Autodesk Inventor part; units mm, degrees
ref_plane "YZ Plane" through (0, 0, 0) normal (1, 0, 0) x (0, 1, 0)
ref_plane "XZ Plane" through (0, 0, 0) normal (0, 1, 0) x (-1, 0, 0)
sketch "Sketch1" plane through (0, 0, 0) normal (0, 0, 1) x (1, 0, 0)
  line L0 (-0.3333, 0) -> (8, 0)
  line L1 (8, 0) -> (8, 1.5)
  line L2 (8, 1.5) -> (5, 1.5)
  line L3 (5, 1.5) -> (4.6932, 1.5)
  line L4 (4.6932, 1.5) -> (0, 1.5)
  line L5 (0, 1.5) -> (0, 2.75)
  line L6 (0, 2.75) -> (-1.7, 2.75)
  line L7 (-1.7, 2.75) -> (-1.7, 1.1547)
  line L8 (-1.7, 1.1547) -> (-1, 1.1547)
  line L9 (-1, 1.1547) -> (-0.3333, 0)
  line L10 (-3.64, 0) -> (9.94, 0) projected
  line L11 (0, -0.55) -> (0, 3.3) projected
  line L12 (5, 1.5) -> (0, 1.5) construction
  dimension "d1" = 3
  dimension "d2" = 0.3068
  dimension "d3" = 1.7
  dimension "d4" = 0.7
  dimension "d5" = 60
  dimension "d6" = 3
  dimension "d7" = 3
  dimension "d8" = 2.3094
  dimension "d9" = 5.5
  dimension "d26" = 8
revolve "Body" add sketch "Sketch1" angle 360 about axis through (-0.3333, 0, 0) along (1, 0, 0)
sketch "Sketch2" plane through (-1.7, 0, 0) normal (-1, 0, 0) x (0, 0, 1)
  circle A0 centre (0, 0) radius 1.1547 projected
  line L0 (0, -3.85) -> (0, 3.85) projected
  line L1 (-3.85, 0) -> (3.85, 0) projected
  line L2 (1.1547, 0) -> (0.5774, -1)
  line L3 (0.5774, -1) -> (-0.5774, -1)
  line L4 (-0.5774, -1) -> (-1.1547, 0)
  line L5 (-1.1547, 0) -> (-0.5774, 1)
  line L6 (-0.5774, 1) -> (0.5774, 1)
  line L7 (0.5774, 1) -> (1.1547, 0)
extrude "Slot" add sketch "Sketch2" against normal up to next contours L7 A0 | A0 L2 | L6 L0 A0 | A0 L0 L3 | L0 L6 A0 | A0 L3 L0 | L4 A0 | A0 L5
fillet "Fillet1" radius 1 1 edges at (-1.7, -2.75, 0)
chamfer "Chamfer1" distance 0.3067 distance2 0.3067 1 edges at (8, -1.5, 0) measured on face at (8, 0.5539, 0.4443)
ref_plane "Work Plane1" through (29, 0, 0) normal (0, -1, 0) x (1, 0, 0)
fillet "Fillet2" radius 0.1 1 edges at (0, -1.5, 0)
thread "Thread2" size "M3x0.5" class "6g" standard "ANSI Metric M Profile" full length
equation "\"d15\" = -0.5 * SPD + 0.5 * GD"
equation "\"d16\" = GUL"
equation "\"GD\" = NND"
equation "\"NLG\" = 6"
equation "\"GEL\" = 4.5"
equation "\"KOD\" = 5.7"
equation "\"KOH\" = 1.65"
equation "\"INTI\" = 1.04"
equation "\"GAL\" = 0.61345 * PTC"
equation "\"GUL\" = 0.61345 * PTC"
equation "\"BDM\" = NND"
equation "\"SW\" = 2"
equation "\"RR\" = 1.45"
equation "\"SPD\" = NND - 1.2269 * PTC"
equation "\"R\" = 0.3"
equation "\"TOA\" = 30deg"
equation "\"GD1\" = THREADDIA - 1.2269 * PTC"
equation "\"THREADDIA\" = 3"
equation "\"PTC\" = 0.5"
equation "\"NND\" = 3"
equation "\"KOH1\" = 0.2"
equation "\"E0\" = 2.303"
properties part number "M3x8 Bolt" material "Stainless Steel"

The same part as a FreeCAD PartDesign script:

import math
import FreeCAD as App
import Part
import Sketcher
from FreeCAD import Vector
Q = App.Units.Quantity


def edges_at(feature, points):
    """Names of the edges that pass closest to the given points."""
    edges = feature.Shape.Edges
    near = lambda p: min(range(len(edges)), key=lambda i: edges[i].distToShape(Part.Vertex(*p))[0])
    return sorted({f"Edge{near(p) + 1}" for p in points})


def add_polygon(sketch, points):
    """Adds a closed chain of lines whose ends are joined by coincident constraints."""
    first, n = sketch.GeometryCount, len(points)
    for a, b in zip(points, points[1:] + points[:1]):
        sketch.addGeometry(Part.LineSegment(App.Vector(*a, 0), App.Vector(*b, 0)), False)
    for i in range(n):
        sketch.addConstraint(Sketcher.Constraint("Coincident", first + i, 2, first + (i + 1) % n, 1))

doc = App.newDocument("Part")
body = doc.addObject("PartDesign::Body", "Body")

# Sketch on XY plane
sketch1 = body.newObject("Sketcher::SketchObject", "Sketch")
sketch1.AttachmentSupport = (doc.getObject("XY_Plane"), [""])
sketch1.MapMode = "FlatFace"
add_polygon(sketch1, [(-1, 1.2), (-0.3, 0), (8, 0), (8, 1.5), (0, 1.5), (0, 2.8), (-1.7, 2.8), (-1.7, 1.2)])  # lines 0-7
sketch1.addConstraint([
    Sketcher.Constraint("Horizontal", 1),
    Sketcher.Constraint("Vertical", 2),
    Sketcher.Constraint("Horizontal", 3),
    Sketcher.Constraint("Vertical", 4),
    Sketcher.Constraint("Horizontal", 5),
    Sketcher.Constraint("Vertical", 6),
    Sketcher.Constraint("Horizontal", 7),
    Sketcher.Constraint("PointOnObject", 0, 2, -1),
    Sketcher.Constraint("PointOnObject", 3, 2, -2),
    Sketcher.Constraint("DistanceX", 3, 2, 3, 1, Q("8 mm")),
    Sketcher.Constraint("DistanceX", 5, 2, 5, 1, Q("1.7 mm")),
    Sketcher.Constraint("DistanceX", 7, 1, 7, 2, Q("0.7 mm")),
    Sketcher.Constraint("DistanceY", 2, 1, 2, 2, Q("1.5 mm")),
    Sketcher.Constraint("DistanceY", 4, 1, 4, 2, Q("1.25 mm")),
    Sketcher.Constraint("DistanceX", 1, 1, 1, 2, Q("8.3333 mm")),
    Sketcher.Constraint("DistanceY", 6, 2, 6, 1, Q("1.5953 mm")),
])
revolution = body.newObject("PartDesign::Revolution", "Revolution")
revolution.Profile = sketch1
revolution.ReferenceAxis = (sketch1, ["H_Axis"])
revolution.Angle = 360

# Sketch on YZ plane
sketch2 = body.newObject("Sketcher::SketchObject", "Sketch001")
sketch2.AttachmentSupport = (doc.getObject("YZ_Plane"), [""])
sketch2.MapMode = "FlatFace"
sketch2.AttachmentOffset = App.Placement(Vector(0, 0, -1.7), App.Rotation())
sketch2.addGeometry([
    Part.LineSegment(Vector(1, 0.6, 0), Vector(0, 1.2, 0)),  # 0
    Part.ArcOfCircle(Part.Circle(Vector(0, 0, 0), Vector(0, 0, 1), 1.2), math.radians(30), math.radians(90)),  # 1
    Part.ArcOfCircle(Part.Circle(Vector(0, 0, 0), Vector(0, 0, 1), 1.2), math.radians(90), math.radians(150)),  # 2
    Part.LineSegment(Vector(0, 1.2, 0), Vector(-1, 0.6, 0)),  # 3
    Part.ArcOfCircle(Part.Circle(Vector(0, 0, 0), Vector(0, 0, 1), 1.2), math.radians(-30), math.radians(30)),  # 4
    Part.LineSegment(Vector(1, 0.6, 0), Vector(1, -0.6, 0)),  # 5
    Part.LineSegment(Vector(-1, 0.6, 0), Vector(-1, -0.6, 0)),  # 6
    Part.ArcOfCircle(Part.Circle(Vector(0, 0, 0), Vector(0, 0, 1), 1.2), math.radians(150), math.radians(210)),  # 7
    Part.LineSegment(Vector(-1, -0.6, 0), Vector(0, -1.2, 0)),  # 8
    Part.ArcOfCircle(Part.Circle(Vector(0, 0, 0), Vector(0, 0, 1), 1.2), math.radians(-150), math.radians(-90)),  # 9
    Part.ArcOfCircle(Part.Circle(Vector(0, 0, 0), Vector(0, 0, 1), 1.2), math.radians(-90), math.radians(-30)),  # 10
    Part.LineSegment(Vector(0, -1.2, 0), Vector(1, -0.6, 0)),  # 11
], False)
sketch2.addConstraint([
    Sketcher.Constraint("Coincident", 0, 1, 1, 1),
    Sketcher.Constraint("Coincident", 1, 2, 0, 2),
    Sketcher.Constraint("Coincident", 2, 1, 3, 1),
    Sketcher.Constraint("Coincident", 3, 2, 2, 2),
    Sketcher.Constraint("Coincident", 4, 1, 5, 2),
    Sketcher.Constraint("Coincident", 5, 1, 4, 2),
    Sketcher.Constraint("Coincident", 6, 1, 7, 1),
    Sketcher.Constraint("Coincident", 7, 2, 6, 2),
    Sketcher.Constraint("Coincident", 8, 1, 9, 1),
    Sketcher.Constraint("Coincident", 9, 2, 8, 2),
    Sketcher.Constraint("Coincident", 10, 1, 11, 1),
    Sketcher.Constraint("Coincident", 11, 2, 10, 2),
    Sketcher.Constraint("Vertical", 5),
    Sketcher.Constraint("Vertical", 6),
    Sketcher.Constraint("Coincident", 1, 3, -1, 1),
    Sketcher.Constraint("Coincident", 2, 3, -1, 1),
    Sketcher.Constraint("Coincident", 4, 3, -1, 1),
    Sketcher.Constraint("Coincident", 7, 3, -1, 1),
    Sketcher.Constraint("Coincident", 9, 3, -1, 1),
    Sketcher.Constraint("Coincident", 10, 3, -1, 1),
    Sketcher.Constraint("Coincident", 2, 1, 1, 2),
    Sketcher.Constraint("Coincident", 5, 1, 0, 1),
    Sketcher.Constraint("Coincident", 6, 1, 3, 2),
    Sketcher.Constraint("Coincident", 8, 1, 7, 2),
    Sketcher.Constraint("Coincident", 10, 1, 9, 2),
    Sketcher.Constraint("PointOnObject", 1, 2, -2),
    Sketcher.Constraint("PointOnObject", 9, 2, -2),
    Sketcher.Constraint("Parallel", 0, 8),
    Sketcher.Constraint("Parallel", 3, 11),
    Sketcher.Constraint("DistanceX", -1, 1, 0, 1, Q("1 mm")),
    Sketcher.Constraint("Radius", 1, Q("1.1547 mm")),
])
pad1 = body.newObject("PartDesign::Pad", "Pad")
pad1.Profile = sketch2
pad1.Type = "UpToFirst"
doc.recompute()

fillet = body.newObject("PartDesign::Fillet", "Fillet")
fillet.Base = (pad1, edges_at(pad1, [(-1.7, -2.75, 0)]))
fillet.Radius = 1
doc.recompute()

chamfer = body.newObject("PartDesign::Chamfer", "Chamfer")
chamfer.Base = (fillet, edges_at(fillet, [(8, -1.5, 0)]))
chamfer.ChamferType = "Two distances"
chamfer.Size = 0.3067
chamfer.Size2 = 0.3067
doc.recompute()

fillet2 = body.newObject("PartDesign::Fillet", "Fillet001")
fillet2.Base = (chamfer, edges_at(chamfer, [(0, -1.5, 0)]))
fillet2.Radius = 0.1

doc.recompute()
